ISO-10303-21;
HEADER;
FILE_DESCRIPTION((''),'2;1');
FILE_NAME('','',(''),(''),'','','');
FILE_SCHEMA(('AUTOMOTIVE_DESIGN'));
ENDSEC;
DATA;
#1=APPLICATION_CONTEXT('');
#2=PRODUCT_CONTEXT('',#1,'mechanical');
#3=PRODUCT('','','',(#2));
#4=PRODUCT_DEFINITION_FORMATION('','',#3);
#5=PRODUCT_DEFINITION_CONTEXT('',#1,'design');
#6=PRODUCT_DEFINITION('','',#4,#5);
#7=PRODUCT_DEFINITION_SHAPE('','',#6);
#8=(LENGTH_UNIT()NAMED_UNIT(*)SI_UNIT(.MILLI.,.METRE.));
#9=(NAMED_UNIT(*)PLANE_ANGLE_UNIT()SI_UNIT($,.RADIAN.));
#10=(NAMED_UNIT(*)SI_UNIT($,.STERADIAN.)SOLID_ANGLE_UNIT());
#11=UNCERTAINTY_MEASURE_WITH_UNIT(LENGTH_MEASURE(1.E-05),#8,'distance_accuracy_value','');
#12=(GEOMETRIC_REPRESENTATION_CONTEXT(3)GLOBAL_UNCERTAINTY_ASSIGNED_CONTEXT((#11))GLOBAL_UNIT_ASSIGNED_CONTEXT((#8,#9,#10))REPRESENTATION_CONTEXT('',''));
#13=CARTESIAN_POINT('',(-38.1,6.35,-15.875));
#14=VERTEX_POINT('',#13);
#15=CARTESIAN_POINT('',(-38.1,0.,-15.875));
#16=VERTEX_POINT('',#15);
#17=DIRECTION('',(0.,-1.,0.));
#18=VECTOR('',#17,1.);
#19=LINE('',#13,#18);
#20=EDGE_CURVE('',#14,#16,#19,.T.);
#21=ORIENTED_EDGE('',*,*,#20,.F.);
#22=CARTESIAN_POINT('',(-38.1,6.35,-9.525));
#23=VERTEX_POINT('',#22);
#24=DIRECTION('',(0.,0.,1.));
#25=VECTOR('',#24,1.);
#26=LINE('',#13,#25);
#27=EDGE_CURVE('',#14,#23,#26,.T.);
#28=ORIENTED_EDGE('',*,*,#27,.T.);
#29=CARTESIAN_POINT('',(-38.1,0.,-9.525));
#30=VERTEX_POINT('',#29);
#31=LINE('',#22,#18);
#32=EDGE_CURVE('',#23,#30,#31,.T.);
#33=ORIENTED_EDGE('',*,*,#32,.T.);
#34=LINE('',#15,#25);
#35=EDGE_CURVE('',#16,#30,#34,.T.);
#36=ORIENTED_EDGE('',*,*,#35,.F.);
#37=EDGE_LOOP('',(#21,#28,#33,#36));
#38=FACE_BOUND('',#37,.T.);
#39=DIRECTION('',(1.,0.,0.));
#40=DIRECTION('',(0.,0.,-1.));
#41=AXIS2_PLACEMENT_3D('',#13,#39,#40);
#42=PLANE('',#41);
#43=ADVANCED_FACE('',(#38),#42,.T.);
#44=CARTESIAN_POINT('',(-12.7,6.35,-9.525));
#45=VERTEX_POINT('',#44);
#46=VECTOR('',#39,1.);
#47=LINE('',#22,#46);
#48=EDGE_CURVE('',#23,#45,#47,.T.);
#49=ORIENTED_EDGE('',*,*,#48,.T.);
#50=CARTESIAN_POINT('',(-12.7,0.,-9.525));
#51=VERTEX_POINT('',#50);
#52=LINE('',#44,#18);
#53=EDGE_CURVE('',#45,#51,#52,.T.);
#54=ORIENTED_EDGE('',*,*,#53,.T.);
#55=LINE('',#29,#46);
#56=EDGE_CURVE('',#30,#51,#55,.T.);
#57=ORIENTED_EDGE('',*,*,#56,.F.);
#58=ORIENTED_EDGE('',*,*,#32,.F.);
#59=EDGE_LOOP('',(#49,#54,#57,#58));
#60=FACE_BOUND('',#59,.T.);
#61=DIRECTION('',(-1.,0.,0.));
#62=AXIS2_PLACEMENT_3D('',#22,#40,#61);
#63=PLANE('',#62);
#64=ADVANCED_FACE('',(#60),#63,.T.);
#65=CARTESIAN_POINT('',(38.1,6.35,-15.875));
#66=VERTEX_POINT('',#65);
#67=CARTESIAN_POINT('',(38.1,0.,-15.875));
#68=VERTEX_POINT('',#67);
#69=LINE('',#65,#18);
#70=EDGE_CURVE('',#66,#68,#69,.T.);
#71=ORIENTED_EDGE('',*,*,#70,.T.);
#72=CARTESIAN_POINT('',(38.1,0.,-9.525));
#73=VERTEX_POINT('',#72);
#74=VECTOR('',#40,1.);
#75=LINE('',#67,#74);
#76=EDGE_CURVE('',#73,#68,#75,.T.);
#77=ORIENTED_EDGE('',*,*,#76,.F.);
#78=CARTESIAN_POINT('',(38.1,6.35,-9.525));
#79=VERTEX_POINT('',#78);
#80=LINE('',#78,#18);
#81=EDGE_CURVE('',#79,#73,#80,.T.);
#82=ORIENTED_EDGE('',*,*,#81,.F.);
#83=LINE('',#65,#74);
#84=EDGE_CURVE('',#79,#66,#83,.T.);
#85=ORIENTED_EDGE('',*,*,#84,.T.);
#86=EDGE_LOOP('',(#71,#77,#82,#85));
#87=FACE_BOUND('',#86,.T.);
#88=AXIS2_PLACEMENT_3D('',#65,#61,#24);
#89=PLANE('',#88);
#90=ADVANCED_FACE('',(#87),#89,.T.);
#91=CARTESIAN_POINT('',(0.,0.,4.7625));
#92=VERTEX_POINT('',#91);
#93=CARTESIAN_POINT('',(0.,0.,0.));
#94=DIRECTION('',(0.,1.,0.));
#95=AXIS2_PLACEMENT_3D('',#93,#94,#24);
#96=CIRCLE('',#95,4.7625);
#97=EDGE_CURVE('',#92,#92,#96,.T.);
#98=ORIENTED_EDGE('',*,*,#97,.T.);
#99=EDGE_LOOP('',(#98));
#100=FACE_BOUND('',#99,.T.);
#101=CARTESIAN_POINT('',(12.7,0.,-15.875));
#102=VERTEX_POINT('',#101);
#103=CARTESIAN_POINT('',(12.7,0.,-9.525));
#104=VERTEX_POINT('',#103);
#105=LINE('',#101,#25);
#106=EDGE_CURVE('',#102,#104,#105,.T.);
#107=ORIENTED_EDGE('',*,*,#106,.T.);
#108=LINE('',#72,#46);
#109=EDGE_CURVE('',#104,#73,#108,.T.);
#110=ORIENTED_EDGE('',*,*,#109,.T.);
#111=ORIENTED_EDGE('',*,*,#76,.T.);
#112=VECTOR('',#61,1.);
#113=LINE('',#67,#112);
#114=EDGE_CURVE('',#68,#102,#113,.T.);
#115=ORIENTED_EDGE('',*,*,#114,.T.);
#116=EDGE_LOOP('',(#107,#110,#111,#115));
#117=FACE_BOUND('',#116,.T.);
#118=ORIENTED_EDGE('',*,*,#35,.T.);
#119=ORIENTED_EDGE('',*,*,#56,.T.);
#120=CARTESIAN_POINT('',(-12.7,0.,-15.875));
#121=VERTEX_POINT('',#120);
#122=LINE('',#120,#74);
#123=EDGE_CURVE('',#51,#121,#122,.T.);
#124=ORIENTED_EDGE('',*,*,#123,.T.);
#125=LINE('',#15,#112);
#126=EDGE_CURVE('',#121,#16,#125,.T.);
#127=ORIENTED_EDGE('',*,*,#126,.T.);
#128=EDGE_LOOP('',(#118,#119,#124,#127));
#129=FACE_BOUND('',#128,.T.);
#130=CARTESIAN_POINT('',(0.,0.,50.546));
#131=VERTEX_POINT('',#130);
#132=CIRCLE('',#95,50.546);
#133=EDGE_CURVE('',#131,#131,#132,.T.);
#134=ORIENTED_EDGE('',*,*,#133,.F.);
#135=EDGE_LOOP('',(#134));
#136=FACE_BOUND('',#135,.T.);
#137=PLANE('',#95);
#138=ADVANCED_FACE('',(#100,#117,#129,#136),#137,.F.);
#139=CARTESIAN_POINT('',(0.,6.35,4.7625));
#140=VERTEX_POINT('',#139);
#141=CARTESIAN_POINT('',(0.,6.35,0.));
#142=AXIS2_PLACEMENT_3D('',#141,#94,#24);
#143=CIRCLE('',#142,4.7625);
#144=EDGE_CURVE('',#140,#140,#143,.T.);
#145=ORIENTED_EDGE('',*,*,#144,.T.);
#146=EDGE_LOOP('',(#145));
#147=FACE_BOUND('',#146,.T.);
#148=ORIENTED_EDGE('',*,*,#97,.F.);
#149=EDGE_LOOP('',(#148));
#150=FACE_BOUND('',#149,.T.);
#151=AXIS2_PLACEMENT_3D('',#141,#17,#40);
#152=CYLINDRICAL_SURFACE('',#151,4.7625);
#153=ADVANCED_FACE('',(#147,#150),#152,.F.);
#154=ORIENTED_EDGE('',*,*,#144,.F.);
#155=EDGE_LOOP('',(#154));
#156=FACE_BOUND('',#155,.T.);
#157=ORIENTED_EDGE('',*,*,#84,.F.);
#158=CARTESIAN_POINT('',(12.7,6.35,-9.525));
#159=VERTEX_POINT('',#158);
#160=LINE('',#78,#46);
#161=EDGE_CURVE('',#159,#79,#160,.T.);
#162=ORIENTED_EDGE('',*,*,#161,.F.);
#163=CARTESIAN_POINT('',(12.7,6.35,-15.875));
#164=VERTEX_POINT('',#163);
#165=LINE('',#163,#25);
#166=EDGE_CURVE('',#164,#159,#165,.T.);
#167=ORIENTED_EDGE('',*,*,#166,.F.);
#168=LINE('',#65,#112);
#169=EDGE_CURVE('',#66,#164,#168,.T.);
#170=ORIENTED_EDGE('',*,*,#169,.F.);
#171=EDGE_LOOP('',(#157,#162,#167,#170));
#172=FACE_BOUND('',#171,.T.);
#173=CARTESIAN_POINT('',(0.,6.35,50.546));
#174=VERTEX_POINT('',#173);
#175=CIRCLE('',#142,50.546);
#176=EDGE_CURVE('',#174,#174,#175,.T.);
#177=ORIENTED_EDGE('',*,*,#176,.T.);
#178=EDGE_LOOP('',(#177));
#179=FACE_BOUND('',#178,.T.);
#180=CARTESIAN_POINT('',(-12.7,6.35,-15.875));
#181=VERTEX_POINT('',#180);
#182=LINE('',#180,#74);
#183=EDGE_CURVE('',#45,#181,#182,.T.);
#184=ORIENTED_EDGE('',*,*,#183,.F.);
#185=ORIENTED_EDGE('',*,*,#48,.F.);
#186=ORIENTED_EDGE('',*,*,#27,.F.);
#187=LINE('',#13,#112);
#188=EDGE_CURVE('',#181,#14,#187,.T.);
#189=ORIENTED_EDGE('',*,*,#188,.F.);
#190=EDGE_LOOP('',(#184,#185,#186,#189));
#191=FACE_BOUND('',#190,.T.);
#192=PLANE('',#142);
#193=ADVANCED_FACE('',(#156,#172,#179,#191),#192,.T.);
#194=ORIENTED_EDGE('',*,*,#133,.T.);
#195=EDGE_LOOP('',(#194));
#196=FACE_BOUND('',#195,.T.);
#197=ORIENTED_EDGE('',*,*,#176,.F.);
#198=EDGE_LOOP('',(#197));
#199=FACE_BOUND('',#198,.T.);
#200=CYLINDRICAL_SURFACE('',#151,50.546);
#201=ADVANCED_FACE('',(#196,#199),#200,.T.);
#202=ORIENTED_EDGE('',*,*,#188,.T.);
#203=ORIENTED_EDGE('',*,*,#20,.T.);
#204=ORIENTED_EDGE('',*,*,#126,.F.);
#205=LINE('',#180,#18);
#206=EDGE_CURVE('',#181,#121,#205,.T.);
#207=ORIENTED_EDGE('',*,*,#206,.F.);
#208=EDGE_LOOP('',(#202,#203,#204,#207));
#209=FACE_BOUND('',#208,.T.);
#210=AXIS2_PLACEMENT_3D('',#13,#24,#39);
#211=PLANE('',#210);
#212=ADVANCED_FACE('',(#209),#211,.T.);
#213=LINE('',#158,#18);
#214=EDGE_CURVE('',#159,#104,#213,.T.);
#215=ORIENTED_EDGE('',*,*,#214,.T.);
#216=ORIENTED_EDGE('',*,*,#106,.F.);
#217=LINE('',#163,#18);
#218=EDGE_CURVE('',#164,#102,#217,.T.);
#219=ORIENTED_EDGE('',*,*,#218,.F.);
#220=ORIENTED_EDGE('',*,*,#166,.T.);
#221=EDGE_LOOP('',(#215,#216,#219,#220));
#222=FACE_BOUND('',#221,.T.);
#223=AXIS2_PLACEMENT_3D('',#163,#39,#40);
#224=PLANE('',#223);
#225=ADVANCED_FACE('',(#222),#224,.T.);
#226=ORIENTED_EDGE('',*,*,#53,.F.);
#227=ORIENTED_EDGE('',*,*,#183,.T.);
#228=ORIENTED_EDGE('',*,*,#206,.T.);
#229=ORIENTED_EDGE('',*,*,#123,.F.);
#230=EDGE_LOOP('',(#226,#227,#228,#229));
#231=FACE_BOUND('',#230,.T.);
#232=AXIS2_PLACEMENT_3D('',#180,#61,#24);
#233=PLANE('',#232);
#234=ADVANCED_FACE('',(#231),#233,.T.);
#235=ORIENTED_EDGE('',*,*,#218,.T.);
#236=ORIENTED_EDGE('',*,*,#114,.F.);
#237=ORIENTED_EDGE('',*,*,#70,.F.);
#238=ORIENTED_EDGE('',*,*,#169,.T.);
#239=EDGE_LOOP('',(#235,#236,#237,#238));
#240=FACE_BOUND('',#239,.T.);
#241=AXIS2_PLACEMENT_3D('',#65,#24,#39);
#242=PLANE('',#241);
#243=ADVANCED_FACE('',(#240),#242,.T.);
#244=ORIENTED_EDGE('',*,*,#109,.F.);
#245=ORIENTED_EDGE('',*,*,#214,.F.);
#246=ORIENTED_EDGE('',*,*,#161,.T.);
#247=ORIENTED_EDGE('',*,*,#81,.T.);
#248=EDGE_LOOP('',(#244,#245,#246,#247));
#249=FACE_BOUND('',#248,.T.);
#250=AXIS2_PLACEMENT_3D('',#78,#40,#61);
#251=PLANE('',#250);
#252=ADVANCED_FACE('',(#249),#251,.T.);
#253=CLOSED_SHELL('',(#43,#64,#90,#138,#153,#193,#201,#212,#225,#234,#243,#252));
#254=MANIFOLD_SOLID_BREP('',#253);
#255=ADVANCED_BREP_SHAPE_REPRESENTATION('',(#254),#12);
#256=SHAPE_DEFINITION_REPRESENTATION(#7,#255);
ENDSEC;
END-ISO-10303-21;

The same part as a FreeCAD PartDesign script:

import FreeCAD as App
import Part
import Sketcher

V = App.Vector
Q = App.Units.Quantity

doc = App.newDocument("Part")
body = doc.addObject("PartDesign::Body", "Body")

sketch1 = body.newObject("Sketcher::SketchObject", "Sketch")
sketch1.AttachmentSupport = (doc.getObject("XZ_Plane"), [""])
sketch1.MapMode = "FlatFace"
sketch1.addGeometry([
    Part.Circle(V(0, 0, 0), V(0, 0, 1), 50.5),
    Part.LineSegment(V(-12.7, -9.5, 0), V(-38.1, -9.5, 0)),
    Part.LineSegment(V(-38.1, -9.5, 0), V(-38.1, -15.9, 0)),
    Part.LineSegment(V(-38.1, -15.9, 0), V(-12.7, -15.9, 0)),
    Part.LineSegment(V(-12.7, -15.9, 0), V(-12.7, -9.5, 0)),
    Part.LineSegment(V(38.1, -9.5, 0), V(12.7, -9.5, 0)),
    Part.LineSegment(V(12.7, -9.5, 0), V(12.7, -15.9, 0)),
    Part.LineSegment(V(12.7, -15.9, 0), V(38.1, -15.9, 0)),
    Part.LineSegment(V(38.1, -15.9, 0), V(38.1, -9.5, 0)),
    Part.Circle(V(0, 0, 0), V(0, 0, 1), 4.8),
], False)
sketch1.addConstraint([
    Sketcher.Constraint("Coincident", 1, 2, 2, 1),
    Sketcher.Constraint("Coincident", 2, 2, 3, 1),
    Sketcher.Constraint("Coincident", 3, 2, 4, 1),
    Sketcher.Constraint("Coincident", 4, 2, 1, 1),
    Sketcher.Constraint("Coincident", 5, 2, 6, 1),
    Sketcher.Constraint("Coincident", 6, 2, 7, 1),
    Sketcher.Constraint("Coincident", 7, 2, 8, 1),
    Sketcher.Constraint("Coincident", 8, 2, 5, 1),
    Sketcher.Constraint("Horizontal", 1),
    Sketcher.Constraint("Vertical", 2),
    Sketcher.Constraint("Horizontal", 3),
    Sketcher.Constraint("Vertical", 4),
    Sketcher.Constraint("Horizontal", 5),
    Sketcher.Constraint("Vertical", 6),
    Sketcher.Constraint("Horizontal", 7),
    Sketcher.Constraint("Vertical", 8),
    Sketcher.Constraint("Coincident", 0, 3, -1, 1),
    Sketcher.Constraint("Coincident", 9, 3, -1, 1),
    Sketcher.Constraint("Symmetric", 4, 2, 5, 2, -2),
    Sketcher.Constraint("Symmetric", 2, 2, 7, 2, -2),
    Sketcher.Constraint("Diameter", 0, Q("3.98 in")),
    Sketcher.Constraint("DistanceX", 1, 2, 1, 1, Q("1 in")),
    Sketcher.Constraint("Diameter", 9, Q("0.375 in")),
    Sketcher.Constraint("DistanceX", 4, 2, 5, 2, Q("1 in")),
    Sketcher.Constraint("DistanceY", 2, 2, 2, 1, Q("0.25 in")),
    Sketcher.Constraint("DistanceY", 1, 2, -1, 1, Q("0.375 in")),
])
pad1 = body.newObject("PartDesign::Pad", "Pad")
pad1.Profile = sketch1
pad1.Length = Q("0.25 in")
pad1.Reversed = True

doc.recompute()
